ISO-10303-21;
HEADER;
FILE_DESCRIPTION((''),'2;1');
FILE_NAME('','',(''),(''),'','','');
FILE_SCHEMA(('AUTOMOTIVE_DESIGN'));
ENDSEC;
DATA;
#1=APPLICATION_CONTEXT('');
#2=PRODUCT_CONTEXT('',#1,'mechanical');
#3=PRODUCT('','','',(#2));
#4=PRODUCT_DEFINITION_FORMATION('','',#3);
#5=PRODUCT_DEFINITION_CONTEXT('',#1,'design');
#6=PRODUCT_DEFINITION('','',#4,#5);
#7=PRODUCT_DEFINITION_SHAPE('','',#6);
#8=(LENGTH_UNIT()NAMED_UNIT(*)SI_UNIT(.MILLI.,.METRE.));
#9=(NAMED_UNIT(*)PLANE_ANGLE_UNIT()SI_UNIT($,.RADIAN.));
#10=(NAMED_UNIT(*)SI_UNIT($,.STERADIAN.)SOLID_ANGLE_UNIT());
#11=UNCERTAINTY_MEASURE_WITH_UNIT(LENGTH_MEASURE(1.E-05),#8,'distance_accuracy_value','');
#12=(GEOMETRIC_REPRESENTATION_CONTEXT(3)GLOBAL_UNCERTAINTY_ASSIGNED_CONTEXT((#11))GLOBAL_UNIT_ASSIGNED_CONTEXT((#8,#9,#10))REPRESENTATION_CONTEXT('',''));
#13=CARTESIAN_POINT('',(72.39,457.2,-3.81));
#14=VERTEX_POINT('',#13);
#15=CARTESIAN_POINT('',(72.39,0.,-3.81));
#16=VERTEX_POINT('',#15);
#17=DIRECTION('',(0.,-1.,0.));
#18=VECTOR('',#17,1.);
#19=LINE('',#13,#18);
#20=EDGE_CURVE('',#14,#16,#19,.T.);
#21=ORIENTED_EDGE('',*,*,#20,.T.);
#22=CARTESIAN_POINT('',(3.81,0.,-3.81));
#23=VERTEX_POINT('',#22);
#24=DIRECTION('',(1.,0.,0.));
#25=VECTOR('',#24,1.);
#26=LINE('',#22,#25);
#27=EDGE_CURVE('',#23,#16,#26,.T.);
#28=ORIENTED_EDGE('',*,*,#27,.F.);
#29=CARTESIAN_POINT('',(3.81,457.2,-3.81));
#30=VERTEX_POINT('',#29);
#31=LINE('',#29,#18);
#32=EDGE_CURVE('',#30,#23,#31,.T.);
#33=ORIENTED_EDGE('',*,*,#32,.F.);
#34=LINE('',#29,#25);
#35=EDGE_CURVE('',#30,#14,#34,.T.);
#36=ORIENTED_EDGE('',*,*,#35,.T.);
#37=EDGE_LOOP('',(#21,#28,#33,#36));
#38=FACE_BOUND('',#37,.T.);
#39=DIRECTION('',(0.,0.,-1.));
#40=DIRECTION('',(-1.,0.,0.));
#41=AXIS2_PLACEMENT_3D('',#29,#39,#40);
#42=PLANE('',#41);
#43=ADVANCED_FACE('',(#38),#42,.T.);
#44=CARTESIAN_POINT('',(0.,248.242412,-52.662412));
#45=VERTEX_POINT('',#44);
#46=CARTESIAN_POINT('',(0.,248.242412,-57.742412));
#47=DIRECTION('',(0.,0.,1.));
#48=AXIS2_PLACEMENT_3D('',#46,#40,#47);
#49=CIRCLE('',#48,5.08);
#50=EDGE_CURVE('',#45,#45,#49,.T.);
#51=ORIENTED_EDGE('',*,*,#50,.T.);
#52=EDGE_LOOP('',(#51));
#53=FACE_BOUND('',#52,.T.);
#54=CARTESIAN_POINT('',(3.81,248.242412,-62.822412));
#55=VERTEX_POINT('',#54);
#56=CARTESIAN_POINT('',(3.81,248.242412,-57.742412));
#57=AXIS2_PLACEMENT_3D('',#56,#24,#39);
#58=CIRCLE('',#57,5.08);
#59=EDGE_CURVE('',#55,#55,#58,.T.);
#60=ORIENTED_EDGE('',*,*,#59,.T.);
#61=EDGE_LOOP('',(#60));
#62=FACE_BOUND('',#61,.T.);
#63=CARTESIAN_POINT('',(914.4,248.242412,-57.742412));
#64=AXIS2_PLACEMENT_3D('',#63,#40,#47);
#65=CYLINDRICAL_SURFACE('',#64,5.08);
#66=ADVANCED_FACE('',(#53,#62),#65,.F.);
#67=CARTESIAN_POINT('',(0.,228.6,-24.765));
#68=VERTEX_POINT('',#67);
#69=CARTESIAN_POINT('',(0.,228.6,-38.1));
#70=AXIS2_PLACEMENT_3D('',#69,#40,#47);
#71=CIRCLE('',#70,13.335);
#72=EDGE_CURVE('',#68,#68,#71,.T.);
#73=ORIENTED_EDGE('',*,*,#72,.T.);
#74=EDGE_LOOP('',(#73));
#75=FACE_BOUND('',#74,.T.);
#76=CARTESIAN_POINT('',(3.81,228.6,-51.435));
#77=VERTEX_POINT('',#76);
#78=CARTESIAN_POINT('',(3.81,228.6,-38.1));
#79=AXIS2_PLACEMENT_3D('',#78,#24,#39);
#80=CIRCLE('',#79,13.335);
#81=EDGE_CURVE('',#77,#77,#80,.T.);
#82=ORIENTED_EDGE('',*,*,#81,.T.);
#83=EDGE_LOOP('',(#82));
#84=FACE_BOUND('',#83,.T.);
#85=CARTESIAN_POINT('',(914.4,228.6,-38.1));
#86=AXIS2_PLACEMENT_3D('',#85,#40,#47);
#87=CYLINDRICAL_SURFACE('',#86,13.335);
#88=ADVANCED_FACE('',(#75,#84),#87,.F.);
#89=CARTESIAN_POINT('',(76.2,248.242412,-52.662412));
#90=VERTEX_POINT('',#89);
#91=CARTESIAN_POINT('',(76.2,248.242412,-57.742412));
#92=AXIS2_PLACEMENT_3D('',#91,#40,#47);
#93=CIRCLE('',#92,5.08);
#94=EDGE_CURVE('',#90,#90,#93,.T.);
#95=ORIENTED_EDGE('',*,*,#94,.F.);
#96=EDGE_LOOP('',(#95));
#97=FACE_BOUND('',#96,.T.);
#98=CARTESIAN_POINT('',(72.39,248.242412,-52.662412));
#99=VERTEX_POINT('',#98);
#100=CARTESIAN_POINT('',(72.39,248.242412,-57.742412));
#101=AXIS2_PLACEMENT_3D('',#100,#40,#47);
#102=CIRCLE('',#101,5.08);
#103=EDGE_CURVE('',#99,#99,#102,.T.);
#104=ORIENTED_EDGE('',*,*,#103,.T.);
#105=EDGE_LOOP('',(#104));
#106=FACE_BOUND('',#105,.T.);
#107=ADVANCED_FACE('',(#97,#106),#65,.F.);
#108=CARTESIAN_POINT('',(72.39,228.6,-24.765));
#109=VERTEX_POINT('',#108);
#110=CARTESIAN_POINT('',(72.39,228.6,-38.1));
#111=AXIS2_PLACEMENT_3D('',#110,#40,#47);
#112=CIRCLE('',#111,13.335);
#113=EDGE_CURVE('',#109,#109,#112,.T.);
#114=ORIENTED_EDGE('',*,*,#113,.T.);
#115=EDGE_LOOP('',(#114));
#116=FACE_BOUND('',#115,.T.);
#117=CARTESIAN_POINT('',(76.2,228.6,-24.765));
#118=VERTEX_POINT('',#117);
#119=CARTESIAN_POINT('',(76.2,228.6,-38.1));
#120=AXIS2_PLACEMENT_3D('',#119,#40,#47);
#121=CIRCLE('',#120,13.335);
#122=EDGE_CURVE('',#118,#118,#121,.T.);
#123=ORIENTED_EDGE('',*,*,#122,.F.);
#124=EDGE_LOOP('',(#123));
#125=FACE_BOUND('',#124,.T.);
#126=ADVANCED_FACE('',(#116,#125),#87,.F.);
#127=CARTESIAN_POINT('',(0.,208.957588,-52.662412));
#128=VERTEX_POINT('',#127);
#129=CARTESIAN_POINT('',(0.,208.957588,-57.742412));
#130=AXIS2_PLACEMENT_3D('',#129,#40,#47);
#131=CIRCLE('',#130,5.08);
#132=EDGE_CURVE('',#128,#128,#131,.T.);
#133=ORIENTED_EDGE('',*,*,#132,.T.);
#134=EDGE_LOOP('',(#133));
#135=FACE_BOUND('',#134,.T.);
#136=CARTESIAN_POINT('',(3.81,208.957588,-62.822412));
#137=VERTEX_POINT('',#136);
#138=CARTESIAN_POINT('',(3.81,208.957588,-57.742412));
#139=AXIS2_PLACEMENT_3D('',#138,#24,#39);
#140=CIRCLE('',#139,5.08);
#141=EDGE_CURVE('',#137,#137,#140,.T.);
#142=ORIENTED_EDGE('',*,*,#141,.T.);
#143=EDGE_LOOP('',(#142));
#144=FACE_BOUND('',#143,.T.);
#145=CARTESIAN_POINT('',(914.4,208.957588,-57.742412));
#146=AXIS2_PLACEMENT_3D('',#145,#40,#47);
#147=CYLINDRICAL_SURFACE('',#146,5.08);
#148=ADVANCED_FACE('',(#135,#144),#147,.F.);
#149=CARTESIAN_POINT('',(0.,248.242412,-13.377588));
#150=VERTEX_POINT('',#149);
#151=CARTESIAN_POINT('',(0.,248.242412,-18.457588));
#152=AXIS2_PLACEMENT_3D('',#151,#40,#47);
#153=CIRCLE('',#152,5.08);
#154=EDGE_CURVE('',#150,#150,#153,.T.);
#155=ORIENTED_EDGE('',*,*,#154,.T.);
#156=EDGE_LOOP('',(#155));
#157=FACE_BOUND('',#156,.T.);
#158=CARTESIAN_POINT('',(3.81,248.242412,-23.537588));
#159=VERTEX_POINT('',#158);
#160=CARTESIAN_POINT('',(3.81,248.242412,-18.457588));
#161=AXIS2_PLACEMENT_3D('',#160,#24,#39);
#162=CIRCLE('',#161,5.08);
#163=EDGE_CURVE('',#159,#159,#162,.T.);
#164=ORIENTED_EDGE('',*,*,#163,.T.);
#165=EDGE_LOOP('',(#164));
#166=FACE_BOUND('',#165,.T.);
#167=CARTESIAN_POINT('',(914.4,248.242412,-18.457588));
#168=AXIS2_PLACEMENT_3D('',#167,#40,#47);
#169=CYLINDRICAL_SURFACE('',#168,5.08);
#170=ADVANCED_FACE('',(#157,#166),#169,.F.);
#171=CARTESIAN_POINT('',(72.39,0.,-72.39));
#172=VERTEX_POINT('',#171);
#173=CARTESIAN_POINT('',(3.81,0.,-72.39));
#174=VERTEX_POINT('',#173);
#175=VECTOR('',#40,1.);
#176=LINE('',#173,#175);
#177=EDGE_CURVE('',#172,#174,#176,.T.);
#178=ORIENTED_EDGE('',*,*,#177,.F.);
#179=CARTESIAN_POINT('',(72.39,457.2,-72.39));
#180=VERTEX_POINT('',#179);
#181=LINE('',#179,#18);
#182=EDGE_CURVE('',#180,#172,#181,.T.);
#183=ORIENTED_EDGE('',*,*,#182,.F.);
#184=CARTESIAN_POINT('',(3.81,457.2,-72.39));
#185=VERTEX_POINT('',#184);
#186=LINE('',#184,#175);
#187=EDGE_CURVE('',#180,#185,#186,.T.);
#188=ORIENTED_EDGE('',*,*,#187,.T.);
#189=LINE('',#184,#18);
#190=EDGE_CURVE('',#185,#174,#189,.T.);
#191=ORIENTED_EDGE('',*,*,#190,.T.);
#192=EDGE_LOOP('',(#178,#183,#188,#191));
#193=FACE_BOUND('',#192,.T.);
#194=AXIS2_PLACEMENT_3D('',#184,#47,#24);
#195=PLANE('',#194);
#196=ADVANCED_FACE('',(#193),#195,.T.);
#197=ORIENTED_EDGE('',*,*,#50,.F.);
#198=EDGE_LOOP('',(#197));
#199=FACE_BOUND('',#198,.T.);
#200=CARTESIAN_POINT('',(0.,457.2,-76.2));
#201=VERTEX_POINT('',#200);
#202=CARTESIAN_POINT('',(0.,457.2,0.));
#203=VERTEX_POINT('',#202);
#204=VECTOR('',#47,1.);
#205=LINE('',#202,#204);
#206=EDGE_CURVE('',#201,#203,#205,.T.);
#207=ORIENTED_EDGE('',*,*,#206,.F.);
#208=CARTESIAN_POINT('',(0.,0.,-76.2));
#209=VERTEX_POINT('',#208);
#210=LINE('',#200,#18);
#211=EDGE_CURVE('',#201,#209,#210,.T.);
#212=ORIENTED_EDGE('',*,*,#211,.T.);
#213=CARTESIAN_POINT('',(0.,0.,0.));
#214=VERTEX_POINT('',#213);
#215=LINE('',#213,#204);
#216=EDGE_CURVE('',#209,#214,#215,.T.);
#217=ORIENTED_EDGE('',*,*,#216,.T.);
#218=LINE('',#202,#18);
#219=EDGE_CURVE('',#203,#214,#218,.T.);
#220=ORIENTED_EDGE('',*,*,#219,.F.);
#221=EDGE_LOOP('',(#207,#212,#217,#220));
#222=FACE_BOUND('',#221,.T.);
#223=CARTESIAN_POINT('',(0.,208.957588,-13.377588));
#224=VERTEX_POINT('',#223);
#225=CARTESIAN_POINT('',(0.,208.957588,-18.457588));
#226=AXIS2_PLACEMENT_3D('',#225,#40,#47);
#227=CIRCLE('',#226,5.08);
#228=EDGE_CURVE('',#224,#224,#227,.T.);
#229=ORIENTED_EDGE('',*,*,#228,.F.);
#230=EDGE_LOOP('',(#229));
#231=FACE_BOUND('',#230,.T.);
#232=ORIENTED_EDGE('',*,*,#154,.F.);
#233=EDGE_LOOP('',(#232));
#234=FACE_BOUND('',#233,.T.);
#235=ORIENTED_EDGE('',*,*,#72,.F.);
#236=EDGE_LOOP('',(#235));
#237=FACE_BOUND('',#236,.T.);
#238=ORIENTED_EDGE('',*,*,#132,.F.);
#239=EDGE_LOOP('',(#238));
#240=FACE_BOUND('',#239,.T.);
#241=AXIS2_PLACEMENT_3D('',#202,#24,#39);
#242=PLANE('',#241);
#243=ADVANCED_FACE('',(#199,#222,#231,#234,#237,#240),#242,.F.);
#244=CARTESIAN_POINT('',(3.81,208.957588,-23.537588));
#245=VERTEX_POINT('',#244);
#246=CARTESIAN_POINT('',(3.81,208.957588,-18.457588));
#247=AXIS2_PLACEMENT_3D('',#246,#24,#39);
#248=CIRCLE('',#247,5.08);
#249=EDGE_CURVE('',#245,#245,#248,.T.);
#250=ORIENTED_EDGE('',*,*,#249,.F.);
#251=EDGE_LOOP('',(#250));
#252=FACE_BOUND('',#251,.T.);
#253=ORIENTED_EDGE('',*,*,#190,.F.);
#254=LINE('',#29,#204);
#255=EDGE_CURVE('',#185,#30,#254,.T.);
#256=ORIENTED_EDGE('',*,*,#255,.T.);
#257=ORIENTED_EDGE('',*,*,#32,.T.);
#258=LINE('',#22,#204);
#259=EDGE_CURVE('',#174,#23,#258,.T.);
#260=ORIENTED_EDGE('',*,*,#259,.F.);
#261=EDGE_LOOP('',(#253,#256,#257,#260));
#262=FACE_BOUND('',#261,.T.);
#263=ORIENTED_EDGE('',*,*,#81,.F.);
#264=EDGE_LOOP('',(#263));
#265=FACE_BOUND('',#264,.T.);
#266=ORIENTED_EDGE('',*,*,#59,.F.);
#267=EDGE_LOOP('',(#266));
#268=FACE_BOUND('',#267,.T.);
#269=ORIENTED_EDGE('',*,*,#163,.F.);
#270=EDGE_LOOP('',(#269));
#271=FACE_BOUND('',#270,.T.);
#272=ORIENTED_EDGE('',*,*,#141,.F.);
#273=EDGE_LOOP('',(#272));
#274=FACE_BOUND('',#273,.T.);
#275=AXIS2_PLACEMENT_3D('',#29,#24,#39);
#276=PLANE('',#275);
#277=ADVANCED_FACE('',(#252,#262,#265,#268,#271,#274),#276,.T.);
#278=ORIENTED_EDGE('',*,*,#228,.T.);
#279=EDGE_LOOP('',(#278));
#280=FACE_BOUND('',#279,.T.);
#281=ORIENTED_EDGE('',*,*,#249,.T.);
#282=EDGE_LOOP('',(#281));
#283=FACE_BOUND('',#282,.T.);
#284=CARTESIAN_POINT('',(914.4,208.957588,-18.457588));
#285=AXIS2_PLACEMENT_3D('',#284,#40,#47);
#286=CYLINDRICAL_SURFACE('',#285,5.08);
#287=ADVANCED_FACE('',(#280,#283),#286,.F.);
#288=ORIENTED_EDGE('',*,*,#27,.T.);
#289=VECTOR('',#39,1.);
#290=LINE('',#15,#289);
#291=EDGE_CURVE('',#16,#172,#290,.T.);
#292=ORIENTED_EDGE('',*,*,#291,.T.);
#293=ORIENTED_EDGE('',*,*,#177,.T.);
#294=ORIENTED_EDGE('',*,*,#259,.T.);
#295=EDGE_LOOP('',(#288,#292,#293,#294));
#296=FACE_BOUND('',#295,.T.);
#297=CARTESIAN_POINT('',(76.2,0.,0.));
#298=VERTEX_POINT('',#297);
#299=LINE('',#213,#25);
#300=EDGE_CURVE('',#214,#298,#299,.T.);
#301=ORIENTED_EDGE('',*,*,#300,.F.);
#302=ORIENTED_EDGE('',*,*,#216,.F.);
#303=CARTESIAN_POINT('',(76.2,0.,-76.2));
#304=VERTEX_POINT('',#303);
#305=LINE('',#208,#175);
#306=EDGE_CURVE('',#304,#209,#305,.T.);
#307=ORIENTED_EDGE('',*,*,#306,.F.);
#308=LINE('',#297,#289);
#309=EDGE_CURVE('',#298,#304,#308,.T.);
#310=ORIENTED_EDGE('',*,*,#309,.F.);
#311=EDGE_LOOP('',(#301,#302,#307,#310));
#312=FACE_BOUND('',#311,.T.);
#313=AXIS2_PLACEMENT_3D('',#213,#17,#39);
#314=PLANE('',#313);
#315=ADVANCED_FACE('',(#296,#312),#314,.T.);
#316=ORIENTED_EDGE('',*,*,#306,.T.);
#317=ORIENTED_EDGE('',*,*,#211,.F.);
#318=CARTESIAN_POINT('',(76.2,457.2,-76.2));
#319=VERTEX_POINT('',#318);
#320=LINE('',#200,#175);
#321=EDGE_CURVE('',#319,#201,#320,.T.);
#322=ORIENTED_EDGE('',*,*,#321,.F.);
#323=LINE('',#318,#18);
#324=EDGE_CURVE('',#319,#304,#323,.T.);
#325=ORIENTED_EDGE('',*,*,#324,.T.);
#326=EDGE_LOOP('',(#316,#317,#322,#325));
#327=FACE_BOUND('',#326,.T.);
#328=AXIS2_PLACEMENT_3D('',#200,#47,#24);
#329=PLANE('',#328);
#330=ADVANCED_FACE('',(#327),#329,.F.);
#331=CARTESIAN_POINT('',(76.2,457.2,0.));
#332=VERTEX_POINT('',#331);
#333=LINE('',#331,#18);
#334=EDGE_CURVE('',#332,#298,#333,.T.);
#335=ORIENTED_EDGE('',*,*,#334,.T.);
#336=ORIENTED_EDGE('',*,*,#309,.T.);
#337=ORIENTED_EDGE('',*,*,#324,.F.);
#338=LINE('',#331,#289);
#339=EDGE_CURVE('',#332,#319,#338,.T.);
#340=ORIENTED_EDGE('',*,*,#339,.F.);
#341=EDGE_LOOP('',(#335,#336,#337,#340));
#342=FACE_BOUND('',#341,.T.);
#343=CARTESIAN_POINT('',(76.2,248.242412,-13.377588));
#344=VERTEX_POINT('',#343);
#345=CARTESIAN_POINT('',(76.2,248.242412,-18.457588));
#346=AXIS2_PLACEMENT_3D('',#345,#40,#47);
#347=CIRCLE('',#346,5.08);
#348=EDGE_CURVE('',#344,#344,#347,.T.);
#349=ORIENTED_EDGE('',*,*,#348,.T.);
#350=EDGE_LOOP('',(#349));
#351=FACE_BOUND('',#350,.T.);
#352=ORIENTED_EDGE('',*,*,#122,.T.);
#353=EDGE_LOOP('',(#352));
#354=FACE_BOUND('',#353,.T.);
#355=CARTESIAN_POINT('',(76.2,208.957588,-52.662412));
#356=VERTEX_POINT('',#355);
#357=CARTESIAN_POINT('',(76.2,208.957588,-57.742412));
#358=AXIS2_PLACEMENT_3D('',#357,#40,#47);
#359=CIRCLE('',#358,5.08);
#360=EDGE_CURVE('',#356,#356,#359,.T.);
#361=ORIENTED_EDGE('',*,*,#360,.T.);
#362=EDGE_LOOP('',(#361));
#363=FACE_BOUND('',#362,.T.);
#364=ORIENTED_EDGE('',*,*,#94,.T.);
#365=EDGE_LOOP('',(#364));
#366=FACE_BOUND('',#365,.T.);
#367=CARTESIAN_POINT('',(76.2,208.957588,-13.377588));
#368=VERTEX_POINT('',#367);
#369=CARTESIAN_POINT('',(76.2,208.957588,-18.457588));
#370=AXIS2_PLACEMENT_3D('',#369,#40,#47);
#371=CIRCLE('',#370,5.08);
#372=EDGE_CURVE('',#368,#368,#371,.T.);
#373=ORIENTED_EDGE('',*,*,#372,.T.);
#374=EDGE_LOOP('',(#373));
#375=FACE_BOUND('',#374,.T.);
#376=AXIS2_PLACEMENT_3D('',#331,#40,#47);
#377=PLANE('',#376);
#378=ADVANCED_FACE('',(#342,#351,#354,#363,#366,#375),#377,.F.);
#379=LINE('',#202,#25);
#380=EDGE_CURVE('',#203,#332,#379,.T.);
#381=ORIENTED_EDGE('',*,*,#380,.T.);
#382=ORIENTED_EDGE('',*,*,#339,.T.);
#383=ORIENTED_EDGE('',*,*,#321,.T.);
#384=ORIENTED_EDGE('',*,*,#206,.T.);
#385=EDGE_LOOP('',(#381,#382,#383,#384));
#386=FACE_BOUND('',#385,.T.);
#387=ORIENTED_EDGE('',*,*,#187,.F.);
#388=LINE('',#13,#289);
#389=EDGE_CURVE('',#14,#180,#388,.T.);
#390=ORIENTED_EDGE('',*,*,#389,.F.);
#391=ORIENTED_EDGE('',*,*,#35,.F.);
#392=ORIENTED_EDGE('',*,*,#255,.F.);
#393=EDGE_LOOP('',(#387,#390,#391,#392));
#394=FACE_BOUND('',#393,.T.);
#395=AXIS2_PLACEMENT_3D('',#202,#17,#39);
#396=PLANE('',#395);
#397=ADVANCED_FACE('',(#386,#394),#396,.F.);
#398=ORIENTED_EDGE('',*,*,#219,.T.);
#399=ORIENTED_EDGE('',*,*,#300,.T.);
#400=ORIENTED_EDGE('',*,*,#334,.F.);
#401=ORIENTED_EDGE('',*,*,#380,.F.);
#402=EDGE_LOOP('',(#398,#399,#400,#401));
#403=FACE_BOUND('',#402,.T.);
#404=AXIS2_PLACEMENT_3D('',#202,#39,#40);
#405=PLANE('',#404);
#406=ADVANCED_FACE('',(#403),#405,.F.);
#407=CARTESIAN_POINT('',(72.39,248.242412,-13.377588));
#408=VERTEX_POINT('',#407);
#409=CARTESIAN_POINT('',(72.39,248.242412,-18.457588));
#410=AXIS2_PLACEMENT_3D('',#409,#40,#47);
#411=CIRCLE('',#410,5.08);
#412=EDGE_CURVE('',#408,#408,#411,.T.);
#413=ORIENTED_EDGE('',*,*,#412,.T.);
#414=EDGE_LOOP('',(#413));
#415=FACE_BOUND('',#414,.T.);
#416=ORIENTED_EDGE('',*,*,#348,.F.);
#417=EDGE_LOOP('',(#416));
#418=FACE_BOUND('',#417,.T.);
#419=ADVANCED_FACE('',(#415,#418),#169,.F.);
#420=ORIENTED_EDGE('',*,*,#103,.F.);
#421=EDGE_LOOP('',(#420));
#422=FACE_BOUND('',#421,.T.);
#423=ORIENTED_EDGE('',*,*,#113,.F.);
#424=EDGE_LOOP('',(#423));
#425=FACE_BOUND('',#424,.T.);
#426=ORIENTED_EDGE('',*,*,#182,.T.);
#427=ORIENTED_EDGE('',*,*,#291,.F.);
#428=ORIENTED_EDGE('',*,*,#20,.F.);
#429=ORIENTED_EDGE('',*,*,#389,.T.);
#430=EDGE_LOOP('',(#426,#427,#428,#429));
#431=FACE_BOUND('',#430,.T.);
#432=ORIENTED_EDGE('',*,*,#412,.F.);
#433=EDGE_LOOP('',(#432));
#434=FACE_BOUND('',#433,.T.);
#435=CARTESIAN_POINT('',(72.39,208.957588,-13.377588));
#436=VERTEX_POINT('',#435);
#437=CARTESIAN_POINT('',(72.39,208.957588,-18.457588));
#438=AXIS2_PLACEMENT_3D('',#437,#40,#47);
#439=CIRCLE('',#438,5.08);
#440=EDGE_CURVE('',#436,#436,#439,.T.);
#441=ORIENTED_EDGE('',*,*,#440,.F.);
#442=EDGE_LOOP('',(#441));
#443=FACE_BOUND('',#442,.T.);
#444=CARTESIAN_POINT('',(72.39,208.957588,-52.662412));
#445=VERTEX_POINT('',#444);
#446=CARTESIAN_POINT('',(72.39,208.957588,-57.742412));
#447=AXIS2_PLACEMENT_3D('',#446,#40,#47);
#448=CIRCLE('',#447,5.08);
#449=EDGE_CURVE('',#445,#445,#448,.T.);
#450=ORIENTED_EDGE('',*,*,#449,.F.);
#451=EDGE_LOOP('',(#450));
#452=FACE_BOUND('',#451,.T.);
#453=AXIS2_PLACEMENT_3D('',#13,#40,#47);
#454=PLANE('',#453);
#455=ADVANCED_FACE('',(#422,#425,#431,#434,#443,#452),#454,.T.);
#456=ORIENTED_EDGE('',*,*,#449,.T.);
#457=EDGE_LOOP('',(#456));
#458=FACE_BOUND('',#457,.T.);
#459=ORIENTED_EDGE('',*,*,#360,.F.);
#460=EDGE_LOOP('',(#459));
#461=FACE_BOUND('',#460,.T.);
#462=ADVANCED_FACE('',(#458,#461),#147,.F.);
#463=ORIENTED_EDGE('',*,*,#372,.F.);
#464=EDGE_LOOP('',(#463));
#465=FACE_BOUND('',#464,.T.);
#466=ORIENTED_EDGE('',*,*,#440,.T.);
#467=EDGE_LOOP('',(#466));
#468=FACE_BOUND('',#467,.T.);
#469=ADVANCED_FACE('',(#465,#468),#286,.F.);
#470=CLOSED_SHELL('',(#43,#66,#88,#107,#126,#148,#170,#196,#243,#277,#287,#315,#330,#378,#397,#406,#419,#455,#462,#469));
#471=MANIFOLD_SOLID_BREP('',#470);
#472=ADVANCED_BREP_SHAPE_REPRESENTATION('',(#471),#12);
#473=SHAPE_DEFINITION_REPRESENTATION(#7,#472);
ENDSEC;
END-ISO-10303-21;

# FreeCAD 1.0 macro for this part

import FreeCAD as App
import Part
import Sketcher

V = App.Vector
Q = App.Units.Quantity


def add_polygon(sketch, points):
    """Adds a closed chain of lines whose ends are joined by coincident constraints."""
    first, n = sketch.GeometryCount, len(points)
    for a, b in zip(points, points[1:] + points[:1]):
        sketch.addGeometry(Part.LineSegment(App.Vector(*a, 0), App.Vector(*b, 0)), False)
    for i in range(n):
        sketch.addConstraint(Sketcher.Constraint("Coincident", first + i, 2, first + (i + 1) % n, 1))

doc = App.newDocument("Part")
body = doc.addObject("PartDesign::Body", "Body")

sketch1 = body.newObject("Sketcher::SketchObject", "Sketch")
sketch1.AttachmentSupport = (doc.getObject("XZ_Plane"), [""])
sketch1.MapMode = "FlatFace"
add_polygon(sketch1, [(0, -76), (0, 0), (76, 0), (76, -76)])
add_polygon(sketch1, [(72, -4), (4, -4), (4, -72), (72, -72)])
sketch1.addConstraint([
    Sketcher.Constraint("Vertical", 0),
    Sketcher.Constraint("Horizontal", 1),
    Sketcher.Constraint("Vertical", 2),
    Sketcher.Constraint("Horizontal", 3),
    Sketcher.Constraint("Horizontal", 4),
    Sketcher.Constraint("Vertical", 5),
    Sketcher.Constraint("Horizontal", 6),
    Sketcher.Constraint("Vertical", 7),
    Sketcher.Constraint("Coincident", 0, 2, -1, 1),
    Sketcher.Constraint("Equal", 3, 0),
    Sketcher.Constraint("Equal", 6, 5),
    Sketcher.Constraint("DistanceX", 1, 1, 1, 2, Q("3 in")),
    Sketcher.Constraint("DistanceX", 4, 2, 4, 1, Q("2.7 in")),
    Sketcher.Constraint("DistanceX", -1, 1, 4, 2, Q("0.15 in")),
    Sketcher.Constraint("DistanceY", 4, 2, -1, 1, Q("0.15 in")),
])
pad1 = body.newObject("PartDesign::Pad", "Pad")
pad1.Profile = sketch1
pad1.Length = Q("18 in")
pad1.Reversed = True

sketch2 = body.newObject("Sketcher::SketchObject", "Sketch001")
sketch2.AttachmentSupport = (doc.getObject("YZ_Plane"), [""])
sketch2.MapMode = "FlatFace"
sketch2.addGeometry(Part.Circle(V(229, -38, 0), V(0, 0, 1), 13), False)
sketch2.addConstraint([
    Sketcher.Constraint("Diameter", 0, Q("1.05 in")),
    Sketcher.Constraint("DistanceX", -1, 1, 0, 3, Q("9 in")),
    Sketcher.Constraint("DistanceY", 0, 3, -1, 1, Q("1.5 in")),
])
pocket1 = body.newObject("PartDesign::Pocket", "Pocket")
pocket1.Profile = sketch2
pocket1.Length = Q("36 in")
pocket1.Reversed = True

sketch3 = body.newObject("Sketcher::SketchObject", "Sketch002")
sketch3.AttachmentSupport = (doc.getObject("YZ_Plane"), [""])
sketch3.MapMode = "FlatFace"
sketch3.addGeometry([
    Part.Circle(V(248, -58, 0), V(0, 0, 1), 5),
    Part.Circle(V(248, -18, 0), V(0, 0, 1), 5),
    Part.Circle(V(209, -58, 0), V(0, 0, 1), 5),
    Part.Circle(V(209, -18, 0), V(0, 0, 1), 5),
], False)
sketch3.addConstraint([
    Sketcher.Constraint("Equal", 0, 1),
    Sketcher.Constraint("Equal", 1, 2),
    Sketcher.Constraint("Equal", 2, 3),
    Sketcher.Constraint("Horizontal", 0, 3, 2, 3),
    Sketcher.Constraint("Horizontal", 1, 3, 3, 3),
    Sketcher.Constraint("Vertical", 0, 3, 1, 3),
    Sketcher.Constraint("Vertical", 2, 3, 3, 3),
    Sketcher.Constraint("Diameter", 0, Q("0.4 in")),
    Sketcher.Constraint("DistanceX", -1, 1, 0, 3, Q("248.242412 mm")),
    Sketcher.Constraint("DistanceY", 0, 3, -1, 1, Q("57.742412 mm")),
    Sketcher.Constraint("DistanceY", 1, 3, -1, 1, Q("18.457588 mm")),
    Sketcher.Constraint("DistanceX", -1, 1, 2, 3, Q("208.957588 mm")),
])
pocket2 = body.newObject("PartDesign::Pocket", "Pocket001")
pocket2.Profile = sketch3
pocket2.Length = Q("36 in")
pocket2.Reversed = True

doc.recompute()
